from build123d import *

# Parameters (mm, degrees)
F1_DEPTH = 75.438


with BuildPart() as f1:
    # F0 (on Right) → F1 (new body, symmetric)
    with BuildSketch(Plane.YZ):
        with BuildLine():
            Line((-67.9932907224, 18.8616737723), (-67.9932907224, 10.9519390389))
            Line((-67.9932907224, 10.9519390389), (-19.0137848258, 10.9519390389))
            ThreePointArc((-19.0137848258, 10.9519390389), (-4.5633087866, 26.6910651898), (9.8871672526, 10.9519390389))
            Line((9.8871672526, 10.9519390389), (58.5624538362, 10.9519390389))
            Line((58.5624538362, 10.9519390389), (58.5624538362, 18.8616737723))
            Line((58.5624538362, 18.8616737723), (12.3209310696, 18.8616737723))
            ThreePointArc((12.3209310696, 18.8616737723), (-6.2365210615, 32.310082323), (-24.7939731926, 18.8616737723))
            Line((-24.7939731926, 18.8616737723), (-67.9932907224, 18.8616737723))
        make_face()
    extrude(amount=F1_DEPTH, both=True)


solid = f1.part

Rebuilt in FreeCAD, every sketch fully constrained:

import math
import FreeCAD as App
import Part
import Sketcher

V = App.Vector
Q = App.Units.Quantity

doc = App.newDocument("Part")
body = doc.addObject("PartDesign::Body", "Body")

sketch1 = doc.addObject("Sketcher::SketchObject", "Sketch")
body.addObject(sketch1)
sketch1.AttachmentSupport = (doc.YZ_Plane, [""])
sketch1.MapMode = "FlatFace"
sketch1.addGeometry(Part.LineSegment(V(-68, 19, 0), V(-68, 11, 0)), False)
sketch1.addGeometry(Part.LineSegment(V(-68, 11, 0), V(-19, 11, 0)), False)
sketch1.addGeometry(Part.ArcOfCircle(Part.Circle(V(-5, 12, 0), V(0, 0, 1), 15), math.radians(-5), math.radians(185)), False)
sketch1.addGeometry(Part.LineSegment(V(10, 11, 0), V(59, 11, 0)), False)
sketch1.addGeometry(Part.LineSegment(V(59, 11, 0), V(59, 19, 0)), False)
sketch1.addGeometry(Part.LineSegment(V(59, 19, 0), V(12, 19, 0)), False)
sketch1.addGeometry(Part.ArcOfCircle(Part.Circle(V(-6, 13, 0), V(0, 0, 1), 20), math.radians(18), math.radians(162)), False)
sketch1.addGeometry(Part.LineSegment(V(-25, 19, 0), V(-68, 19, 0)), False)
sketch1.addConstraint(Sketcher.Constraint("Coincident", 0, 2, 1, 1))
sketch1.addConstraint(Sketcher.Constraint("Coincident", 1, 2, 2, 2))
sketch1.addConstraint(Sketcher.Constraint("Coincident", 2, 1, 3, 1))
sketch1.addConstraint(Sketcher.Constraint("Coincident", 3, 2, 4, 1))
sketch1.addConstraint(Sketcher.Constraint("Coincident", 4, 2, 5, 1))
sketch1.addConstraint(Sketcher.Constraint("Coincident", 5, 2, 6, 1))
sketch1.addConstraint(Sketcher.Constraint("Coincident", 6, 2, 7, 1))
sketch1.addConstraint(Sketcher.Constraint("Coincident", 7, 2, 0, 1))
sketch1.addConstraint(Sketcher.Constraint("Vertical", 0))
sketch1.addConstraint(Sketcher.Constraint("Horizontal", 1))
sketch1.addConstraint(Sketcher.Constraint("Horizontal", 3))
sketch1.addConstraint(Sketcher.Constraint("Vertical", 4))
sketch1.addConstraint(Sketcher.Constraint("Horizontal", 5))
sketch1.addConstraint(Sketcher.Constraint("Horizontal", 7))
sketch1.addConstraint(Sketcher.Constraint("Horizontal", 1, 2, 2, 1))
sketch1.addConstraint(Sketcher.Constraint("Horizontal", 5, 2, 6, 2))
sketch1.addConstraint(Sketcher.Constraint("Radius", 2, 14.503231))
sketch1.addConstraint(Sketcher.Constraint("Radius", 6, 19.527914))
sketch1.addConstraint(Sketcher.Constraint("DistanceX", 1, 1, 1, 2, 48.979506))
sketch1.addConstraint(Sketcher.Constraint("DistanceX", 3, 1, 3, 2, 48.675287))
sketch1.addConstraint(Sketcher.Constraint("DistanceX", 5, 2, 5, 1, 46.241523))
sketch1.addConstraint(Sketcher.Constraint("DistanceX", 7, 2, 7, 1, 43.199318))
sketch1.addConstraint(Sketcher.Constraint("DistanceY", 0, 2, 0, 1, 7.909735))
sketch1.addConstraint(Sketcher.Constraint("DistanceX", 2, 3, -1, 1, 4.563309))
sketch1.addConstraint(Sketcher.Constraint("DistanceY", -1, 1, 6, 3, 12.782169))
sketch1.addConstraint(Sketcher.Constraint("DistanceX", 0, 2, -1, 1, 67.993291))
pad1 = doc.addObject("PartDesign::Pad", "Pad")
body.addObject(pad1)
pad1.Profile = sketch1
pad1.Length = Q("5.94 in")
pad1.Midplane = True

doc.recompute()
